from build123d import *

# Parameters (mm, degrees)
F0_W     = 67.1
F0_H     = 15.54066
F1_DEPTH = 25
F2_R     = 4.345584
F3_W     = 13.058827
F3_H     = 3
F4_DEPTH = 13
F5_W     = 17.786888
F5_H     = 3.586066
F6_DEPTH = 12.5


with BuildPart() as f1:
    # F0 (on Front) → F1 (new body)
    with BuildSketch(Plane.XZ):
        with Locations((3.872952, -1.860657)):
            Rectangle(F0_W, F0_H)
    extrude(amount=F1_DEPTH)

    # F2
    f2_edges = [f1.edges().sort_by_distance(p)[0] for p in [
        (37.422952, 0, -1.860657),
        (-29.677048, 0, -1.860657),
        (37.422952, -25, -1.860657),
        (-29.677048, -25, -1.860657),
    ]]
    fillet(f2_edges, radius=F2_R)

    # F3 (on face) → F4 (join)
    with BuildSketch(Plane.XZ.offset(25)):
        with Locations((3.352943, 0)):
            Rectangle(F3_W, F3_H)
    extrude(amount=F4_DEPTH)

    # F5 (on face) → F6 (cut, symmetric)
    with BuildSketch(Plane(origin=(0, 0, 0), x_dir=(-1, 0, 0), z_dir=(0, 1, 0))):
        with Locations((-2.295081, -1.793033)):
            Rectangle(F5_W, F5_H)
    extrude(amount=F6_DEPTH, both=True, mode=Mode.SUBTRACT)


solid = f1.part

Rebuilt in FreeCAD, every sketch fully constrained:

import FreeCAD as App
import Part
import Sketcher

V = App.Vector


def edges_at(feature, points):
    """Names of the edges that pass closest to the given points."""
    edges = feature.Shape.Edges
    near = lambda p: min(range(len(edges)), key=lambda i: edges[i].distToShape(Part.Vertex(*p))[0])
    return sorted({f"Edge{near(p) + 1}" for p in points})

doc = App.newDocument("Part")
body = doc.addObject("PartDesign::Body", "Body")

# Sketch on XZ plane
sketch1 = doc.addObject("Sketcher::SketchObject", "Sketch")
body.addObject(sketch1)
sketch1.AttachmentSupport = (doc.XZ_Plane, [""])
sketch1.MapMode = "FlatFace"
sketch1.addGeometry([
    Part.LineSegment(V(-29.677048, 5.909673, 0), V(-29.677048, -9.630987, 0)),
    Part.LineSegment(V(-29.677048, -9.630987, 0), V(37.422952, -9.630987, 0)),
    Part.LineSegment(V(37.422952, -9.630987, 0), V(37.422952, 5.909673, 0)),
    Part.LineSegment(V(37.422952, 5.909673, 0), V(-29.677048, 5.909673, 0)),
], False)
sketch1.addConstraint([
    Sketcher.Constraint("Coincident", 0, 2, 1, 1),
    Sketcher.Constraint("Coincident", 1, 2, 2, 1),
    Sketcher.Constraint("Coincident", 2, 2, 3, 1),
    Sketcher.Constraint("Coincident", 3, 2, 0, 1),
    Sketcher.Constraint("Vertical", 0),
    Sketcher.Constraint("Horizontal", 1),
    Sketcher.Constraint("Vertical", 2),
    Sketcher.Constraint("Horizontal", 3),
    Sketcher.Constraint("DistanceX", 1, 1, 1, 2, 67.1),
    Sketcher.Constraint("DistanceY", 0, 2, 0, 1, 15.54066),
    Sketcher.Constraint("DistanceX", 0, 2, -1, 1, 29.677048),
    Sketcher.Constraint("DistanceY", 0, 2, -1, 1, 9.630987),
])
pad1 = doc.addObject("PartDesign::Pad", "Pad")
body.addObject(pad1)
pad1.Profile = sketch1
pad1.Length = 25
doc.recompute()

fillet = doc.addObject("PartDesign::Fillet", "Fillet")
body.addObject(fillet)
fillet.Base = (pad1, edges_at(pad1, [
    (37.423, 0, -1.861),
    (-29.677, 0, -1.861),
    (37.423, -25, -1.861),
    (-29.677, -25, -1.861),
]))
fillet.Radius = 4.345584

# Sketch on XZ plane
sketch2 = doc.addObject("Sketcher::SketchObject", "Sketch001")
body.addObject(sketch2)
sketch2.AttachmentSupport = (doc.XZ_Plane, [""])
sketch2.MapMode = "FlatFace"
sketch2.AttachmentOffset = App.Placement(V(0, 0, 25), App.Rotation())
sketch2.addGeometry([
    Part.LineSegment(V(-3.176471, 1.5, 0), V(-3.176471, -1.5, 0)),
    Part.LineSegment(V(-3.176471, -1.5, 0), V(9.882357, -1.5, 0)),
    Part.LineSegment(V(9.882357, -1.5, 0), V(9.882357, 1.5, 0)),
    Part.LineSegment(V(9.882357, 1.5, 0), V(-3.176471, 1.5, 0)),
], False)
sketch2.addConstraint([
    Sketcher.Constraint("Coincident", 0, 2, 1, 1),
    Sketcher.Constraint("Coincident", 1, 2, 2, 1),
    Sketcher.Constraint("Coincident", 2, 2, 3, 1),
    Sketcher.Constraint("Coincident", 3, 2, 0, 1),
    Sketcher.Constraint("Vertical", 0),
    Sketcher.Constraint("Horizontal", 1),
    Sketcher.Constraint("Vertical", 2),
    Sketcher.Constraint("Horizontal", 3),
    Sketcher.Constraint("DistanceY", 0, 2, 0, 1, 3.0),
    Sketcher.Constraint("DistanceY", 0, 2, -1, 1, 1.5),
    Sketcher.Constraint("DistanceX", 1, 1, 1, 2, 13.058827),
    Sketcher.Constraint("DistanceX", 0, 2, -1, 1, 3.176471),
])
pad2 = doc.addObject("PartDesign::Pad", "Pad001")
body.addObject(pad2)
pad2.Profile = sketch2
pad2.Length = 13

# Sketch on XZ plane
sketch3 = doc.addObject("Sketcher::SketchObject", "Sketch002")
body.addObject(sketch3)
sketch3.AttachmentSupport = (doc.XZ_Plane, [""])
sketch3.MapMode = "FlatFace"
sketch3.addGeometry([
    Part.LineSegment(V(11.188525, 0, 0), V(11.188525, -3.586066, 0)),
    Part.LineSegment(V(11.188525, -3.586066, 0), V(-6.598363, -3.586066, 0)),
    Part.LineSegment(V(-6.598363, -3.586066, 0), V(-6.598363, 0, 0)),
    Part.LineSegment(V(-6.598363, 0, 0), V(11.188525, 0, 0)),
], False)
sketch3.addConstraint([
    Sketcher.Constraint("Coincident", 0, 2, 1, 1),
    Sketcher.Constraint("Coincident", 1, 2, 2, 1),
    Sketcher.Constraint("Coincident", 2, 2, 3, 1),
    Sketcher.Constraint("Coincident", 3, 2, 0, 1),
    Sketcher.Constraint("Vertical", 0),
    Sketcher.Constraint("Horizontal", 1),
    Sketcher.Constraint("Vertical", 2),
    Sketcher.Constraint("Horizontal", 3),
    Sketcher.Constraint("PointOnObject", 2, 2, -1),
    Sketcher.Constraint("DistanceX", 1, 2, 1, 1, 17.786888),
    Sketcher.Constraint("DistanceY", 0, 2, 0, 1, 3.586066),
    Sketcher.Constraint("DistanceX", -1, 1, 0, 2, 11.188525),
])
pocket1 = doc.addObject("PartDesign::Pocket", "Pocket")
body.addObject(pocket1)
pocket1.Profile = sketch3
pocket1.Length = 25
pocket1.Midplane = True

doc.recompute()
